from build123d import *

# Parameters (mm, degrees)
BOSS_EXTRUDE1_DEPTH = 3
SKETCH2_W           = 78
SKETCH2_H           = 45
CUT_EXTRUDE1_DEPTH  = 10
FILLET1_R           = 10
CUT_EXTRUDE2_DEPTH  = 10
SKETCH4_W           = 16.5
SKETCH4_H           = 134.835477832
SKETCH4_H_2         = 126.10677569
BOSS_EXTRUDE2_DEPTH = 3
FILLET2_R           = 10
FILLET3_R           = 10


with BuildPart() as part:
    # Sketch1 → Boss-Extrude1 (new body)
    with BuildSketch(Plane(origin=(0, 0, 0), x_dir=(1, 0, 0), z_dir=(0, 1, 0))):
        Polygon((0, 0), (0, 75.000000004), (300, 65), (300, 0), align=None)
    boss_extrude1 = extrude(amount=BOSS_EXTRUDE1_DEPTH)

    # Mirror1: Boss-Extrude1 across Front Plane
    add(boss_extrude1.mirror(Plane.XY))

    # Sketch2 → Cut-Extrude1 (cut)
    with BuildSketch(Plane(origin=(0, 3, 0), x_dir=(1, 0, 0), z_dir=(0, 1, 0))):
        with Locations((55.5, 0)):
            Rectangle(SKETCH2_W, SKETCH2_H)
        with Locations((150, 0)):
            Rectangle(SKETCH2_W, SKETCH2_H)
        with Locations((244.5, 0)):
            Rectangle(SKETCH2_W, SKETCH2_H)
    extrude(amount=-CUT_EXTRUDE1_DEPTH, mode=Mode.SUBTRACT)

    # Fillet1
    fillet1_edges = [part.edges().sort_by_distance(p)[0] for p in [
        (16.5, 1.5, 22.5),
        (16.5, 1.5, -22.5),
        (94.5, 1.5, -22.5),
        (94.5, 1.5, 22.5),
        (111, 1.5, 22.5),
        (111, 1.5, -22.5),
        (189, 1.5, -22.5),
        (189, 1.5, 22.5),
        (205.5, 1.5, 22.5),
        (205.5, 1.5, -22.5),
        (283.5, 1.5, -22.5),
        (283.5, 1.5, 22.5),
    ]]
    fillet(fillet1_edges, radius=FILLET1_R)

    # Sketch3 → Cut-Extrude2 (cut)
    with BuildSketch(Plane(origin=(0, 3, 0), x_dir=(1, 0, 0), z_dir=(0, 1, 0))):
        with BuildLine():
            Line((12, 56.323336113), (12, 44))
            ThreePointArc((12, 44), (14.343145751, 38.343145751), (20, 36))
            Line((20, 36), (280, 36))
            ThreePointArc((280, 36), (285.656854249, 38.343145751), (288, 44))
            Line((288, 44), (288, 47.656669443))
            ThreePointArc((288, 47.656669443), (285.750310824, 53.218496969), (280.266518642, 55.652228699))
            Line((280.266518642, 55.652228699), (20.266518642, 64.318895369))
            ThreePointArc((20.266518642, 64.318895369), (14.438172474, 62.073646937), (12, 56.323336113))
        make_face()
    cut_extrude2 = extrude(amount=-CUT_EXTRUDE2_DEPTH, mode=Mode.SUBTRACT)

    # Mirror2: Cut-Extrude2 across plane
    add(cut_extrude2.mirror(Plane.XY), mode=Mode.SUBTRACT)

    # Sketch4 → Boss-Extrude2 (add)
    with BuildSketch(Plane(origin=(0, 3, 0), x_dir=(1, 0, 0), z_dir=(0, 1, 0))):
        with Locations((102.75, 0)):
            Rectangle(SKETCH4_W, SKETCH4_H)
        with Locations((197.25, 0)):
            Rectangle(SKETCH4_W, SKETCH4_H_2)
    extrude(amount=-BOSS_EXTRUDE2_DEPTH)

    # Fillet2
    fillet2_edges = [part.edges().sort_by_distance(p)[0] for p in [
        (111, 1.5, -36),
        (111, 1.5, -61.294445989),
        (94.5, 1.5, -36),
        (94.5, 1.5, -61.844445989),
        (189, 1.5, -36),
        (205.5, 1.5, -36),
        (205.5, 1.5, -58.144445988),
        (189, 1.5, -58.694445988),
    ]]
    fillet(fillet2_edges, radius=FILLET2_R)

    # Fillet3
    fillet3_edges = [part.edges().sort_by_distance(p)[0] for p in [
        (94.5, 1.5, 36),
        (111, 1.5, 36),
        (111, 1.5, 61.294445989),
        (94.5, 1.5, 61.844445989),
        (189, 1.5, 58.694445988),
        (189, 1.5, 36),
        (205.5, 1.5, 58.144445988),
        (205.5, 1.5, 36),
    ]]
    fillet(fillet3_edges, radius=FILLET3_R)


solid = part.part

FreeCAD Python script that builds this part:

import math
import FreeCAD as App
import Part
import Sketcher


def edges_at(feature, points):
    """Names of the edges that pass closest to the given points."""
    edges = feature.Shape.Edges
    near = lambda p: min(range(len(edges)), key=lambda i: edges[i].distToShape(Part.Vertex(*p))[0])
    return sorted({f"Edge{near(p) + 1}" for p in points})

doc = App.newDocument("Part")
body = doc.addObject("PartDesign::Body", "Body")

# Sketch on XZ plane
sketch1 = body.newObject("Sketcher::SketchObject", "Sketch")
sketch1.AttachmentSupport = (doc.getObject("XZ_Plane"), [""])
sketch1.MapMode = "FlatFace"
sketch1.addGeometry([
    Part.LineSegment(App.Vector(0, -75, 0), App.Vector(0, 0, 0)),
    Part.LineSegment(App.Vector(0, 0, 0), App.Vector(300, 0, 0)),
    Part.LineSegment(App.Vector(300, 0, 0), App.Vector(300, -65, 0)),
    Part.LineSegment(App.Vector(300, -65, 0), App.Vector(0, -75, 0)),
], False)
sketch1.addConstraint([
    Sketcher.Constraint("Coincident", 0, 2, 1, 1),
    Sketcher.Constraint("Coincident", 1, 2, 2, 1),
    Sketcher.Constraint("Coincident", 2, 2, 3, 1),
    Sketcher.Constraint("Coincident", 3, 2, 0, 1),
    Sketcher.Constraint("Vertical", 0),
    Sketcher.Constraint("Horizontal", 1),
    Sketcher.Constraint("Vertical", 2),
    Sketcher.Constraint("Coincident", 0, 2, -1, 1),
    Sketcher.Constraint("DistanceX", 1, 1, 1, 2, 300.0),
    Sketcher.Constraint("DistanceY", 0, 1, 0, 2, 75.0),
    Sketcher.Constraint("DistanceY", 2, 2, 2, 1, 65.0),
])
pad1 = body.newObject("PartDesign::Pad", "Pad")
pad1.Profile = sketch1
pad1.Length = 3
pad1.Reversed = True
doc.recompute()

mirrored = body.newObject("PartDesign::Mirrored", "Mirrored")
mirrored.Originals = [pad1]
mirrored.MirrorPlane = (doc.getObject("XY_Plane"), [""])
body.Tip = mirrored

# Sketch on XZ plane
sketch2 = body.newObject("Sketcher::SketchObject", "Sketch001")
sketch2.AttachmentSupport = (doc.getObject("XZ_Plane"), [""])
sketch2.MapMode = "FlatFace"
sketch2.AttachmentOffset = App.Placement(App.Vector(0, 0, -3), App.Rotation())
sketch2.addGeometry([
    Part.LineSegment(App.Vector(16, -22, 0), App.Vector(16, 22, 0)),  # 0
    Part.LineSegment(App.Vector(16, 22, 0), App.Vector(94, 22, 0)),  # 1
    Part.LineSegment(App.Vector(94, 22, 0), App.Vector(94, -22, 0)),  # 2
    Part.LineSegment(App.Vector(94, -22, 0), App.Vector(16, -22, 0)),  # 3
    Part.LineSegment(App.Vector(111, -22, 0), App.Vector(111, 22, 0)),  # 4
    Part.LineSegment(App.Vector(111, 22, 0), App.Vector(189, 22, 0)),  # 5
    Part.LineSegment(App.Vector(189, 22, 0), App.Vector(189, -22, 0)),  # 6
    Part.LineSegment(App.Vector(189, -22, 0), App.Vector(111, -22, 0)),  # 7
    Part.LineSegment(App.Vector(206, -22, 0), App.Vector(206, 22, 0)),  # 8
    Part.LineSegment(App.Vector(206, 22, 0), App.Vector(284, 22, 0)),  # 9
    Part.LineSegment(App.Vector(284, 22, 0), App.Vector(284, -22, 0)),  # 10
    Part.LineSegment(App.Vector(284, -22, 0), App.Vector(206, -22, 0)),  # 11
], False)
sketch2.addConstraint([
    Sketcher.Constraint("Coincident", 0, 2, 1, 1),
    Sketcher.Constraint("Coincident", 1, 2, 2, 1),
    Sketcher.Constraint("Coincident", 2, 2, 3, 1),
    Sketcher.Constraint("Coincident", 3, 2, 0, 1),
    Sketcher.Constraint("Coincident", 4, 2, 5, 1),
    Sketcher.Constraint("Coincident", 5, 2, 6, 1),
    Sketcher.Constraint("Coincident", 6, 2, 7, 1),
    Sketcher.Constraint("Coincident", 7, 2, 4, 1),
    Sketcher.Constraint("Coincident", 8, 2, 9, 1),
    Sketcher.Constraint("Coincident", 9, 2, 10, 1),
    Sketcher.Constraint("Coincident", 10, 2, 11, 1),
    Sketcher.Constraint("Coincident", 11, 2, 8, 1),
    Sketcher.Constraint("Vertical", 0),
    Sketcher.Constraint("Horizontal", 1),
    Sketcher.Constraint("Vertical", 2),
    Sketcher.Constraint("Horizontal", 3),
    Sketcher.Constraint("Vertical", 4),
    Sketcher.Constraint("Horizontal", 5),
    Sketcher.Constraint("Vertical", 6),
    Sketcher.Constraint("Horizontal", 7),
    Sketcher.Constraint("Vertical", 8),
    Sketcher.Constraint("Horizontal", 9),
    Sketcher.Constraint("Vertical", 10),
    Sketcher.Constraint("Horizontal", 11),
    Sketcher.Constraint("Horizontal", 1, 2, 4, 2),
    Sketcher.Constraint("Horizontal", 3, 2, 6, 2),
    Sketcher.Constraint("Horizontal", 5, 2, 8, 2),
    Sketcher.Constraint("Horizontal", 7, 2, 10, 2),
    Sketcher.Constraint("Equal", 3, 5),
    Sketcher.Constraint("Equal", 7, 9),
    Sketcher.Constraint("DistanceX", 1, 1, 1, 2, 78.0),
    Sketcher.Constraint("DistanceY", 0, 1, 0, 2, 45.0),
    Sketcher.Constraint("DistanceX", -1, 1, 4, 2, 111.0),
    Sketcher.Constraint("DistanceX", 1, 2, 8, 2, 111.0),
    Sketcher.Constraint("DistanceX", -1, 1, 0, 2, 16.5),
    Sketcher.Constraint("DistanceY", -1, 1, 0, 2, 22.5),
])
pocket1 = body.newObject("PartDesign::Pocket", "Pocket")
pocket1.Profile = sketch2
pocket1.Length = 10
pocket1.Reversed = True
doc.recompute()

fillet = body.newObject("PartDesign::Fillet", "Fillet")
fillet.Base = (pocket1, edges_at(pocket1, [
    (16.5, 1.5, 22.5),
    (16.5, 1.5, -22.5),
    (94.5, 1.5, -22.5),
    (94.5, 1.5, 22.5),
    (111, 1.5, 22.5),
    (111, 1.5, -22.5),
    (189, 1.5, -22.5),
    (189, 1.5, 22.5),
    (205.5, 1.5, 22.5),
    (205.5, 1.5, -22.5),
    (283.5, 1.5, -22.5),
    (283.5, 1.5, 22.5),
]))
fillet.Radius = 10

# Sketch on XZ plane
sketch3 = body.newObject("Sketcher::SketchObject", "Sketch002")
sketch3.AttachmentSupport = (doc.getObject("XZ_Plane"), [""])
sketch3.MapMode = "FlatFace"
sketch3.AttachmentOffset = App.Placement(App.Vector(0, 0, -3), App.Rotation())
sketch3.addGeometry([
    Part.LineSegment(App.Vector(12, -56.3, 0), App.Vector(12, -44, 0)),  # 0
    Part.ArcOfCircle(Part.Circle(App.Vector(20, -44, 0), App.Vector(0, 0, 1), 8), math.radians(90), math.radians(180)),  # 1
    Part.LineSegment(App.Vector(20, -36, 0), App.Vector(280, -36, 0)),  # 2
    Part.ArcOfCircle(Part.Circle(App.Vector(280, -44, 0), App.Vector(0, 0, 1), 8), math.radians(0), math.radians(90)),  # 3
    Part.LineSegment(App.Vector(288, -44, 0), App.Vector(288, -47.7, 0)),  # 4
    Part.ArcOfCircle(Part.Circle(App.Vector(280, -47.7, 0), App.Vector(0, 0, 1), 8), math.radians(-88), math.radians(0)),  # 5
    Part.LineSegment(App.Vector(280.3, -55.7, 0), App.Vector(20.3, -64.3, 0)),  # 6
    Part.ArcOfCircle(Part.Circle(App.Vector(20, -56.3, 0), App.Vector(0, 0, 1), 8), math.radians(180), math.radians(272)),  # 7
], False)
sketch3.addConstraint([
    Sketcher.Constraint("Tangent", 0, 2, 1, 2),
    Sketcher.Constraint("Tangent", 1, 1, 2, 1),
    Sketcher.Constraint("Tangent", 2, 2, 3, 2),
    Sketcher.Constraint("Tangent", 3, 1, 4, 1),
    Sketcher.Constraint("Tangent", 4, 2, 5, 2),
    Sketcher.Constraint("Tangent", 5, 1, 6, 1),
    Sketcher.Constraint("Tangent", 6, 2, 7, 2),
    Sketcher.Constraint("Tangent", 7, 1, 0, 1),
    Sketcher.Constraint("Vertical", 0),
    Sketcher.Constraint("Horizontal", 2),
    Sketcher.Constraint("Vertical", 4),
    Sketcher.Constraint("Equal", 1, 3),
    Sketcher.Constraint("Equal", 3, 5),
    Sketcher.Constraint("Equal", 5, 7),
    Sketcher.Constraint("Radius", 1, 8.0),
    Sketcher.Constraint("DistanceX", 2, 1, 2, 2, 260.0),
    Sketcher.Constraint("DistanceX", -1, 1, 1, 3, 20.0),
    Sketcher.Constraint("DistanceY", 1, 3, -1, 1, 44.0),
    Sketcher.Constraint("DistanceY", 4, 2, 4, 1, 3.656669),
    Sketcher.Constraint("DistanceY", 0, 1, 0, 2, 12.323336),
])
pocket2 = body.newObject("PartDesign::Pocket", "Pocket001")
pocket2.Profile = sketch3
pocket2.Length = 10
pocket2.Reversed = True
doc.recompute()

mirrored2 = body.newObject("PartDesign::Mirrored", "Mirrored001")
mirrored2.Originals = [pocket2]
mirrored2.MirrorPlane = (doc.getObject("XY_Plane"), [""])
body.Tip = mirrored2

# Sketch on XZ plane
sketch4 = body.newObject("Sketcher::SketchObject", "Sketch003")
sketch4.AttachmentSupport = (doc.getObject("XZ_Plane"), [""])
sketch4.MapMode = "FlatFace"
sketch4.AttachmentOffset = App.Placement(App.Vector(0, 0, -3), App.Rotation())
sketch4.addGeometry([
    Part.LineSegment(App.Vector(94, -67, 0), App.Vector(94, 67, 0)),  # 0
    Part.LineSegment(App.Vector(94, 67, 0), App.Vector(111, 67, 0)),  # 1
    Part.LineSegment(App.Vector(111, 67, 0), App.Vector(111, -67, 0)),  # 2
    Part.LineSegment(App.Vector(111, -67, 0), App.Vector(94, -67, 0)),  # 3
    Part.LineSegment(App.Vector(189, -63, 0), App.Vector(189, 63, 0)),  # 4
    Part.LineSegment(App.Vector(189, 63, 0), App.Vector(206, 63, 0)),  # 5
    Part.LineSegment(App.Vector(206, 63, 0), App.Vector(206, -63, 0)),  # 6
    Part.LineSegment(App.Vector(206, -63, 0), App.Vector(189, -63, 0)),  # 7
], False)
sketch4.addConstraint([
    Sketcher.Constraint("Coincident", 0, 2, 1, 1),
    Sketcher.Constraint("Coincident", 1, 2, 2, 1),
    Sketcher.Constraint("Coincident", 2, 2, 3, 1),
    Sketcher.Constraint("Coincident", 3, 2, 0, 1),
    Sketcher.Constraint("Coincident", 4, 2, 5, 1),
    Sketcher.Constraint("Coincident", 5, 2, 6, 1),
    Sketcher.Constraint("Coincident", 6, 2, 7, 1),
    Sketcher.Constraint("Coincident", 7, 2, 4, 1),
    Sketcher.Constraint("Vertical", 0),
    Sketcher.Constraint("Horizontal", 1),
    Sketcher.Constraint("Vertical", 2),
    Sketcher.Constraint("Horizontal", 3),
    Sketcher.Constraint("Vertical", 4),
    Sketcher.Constraint("Horizontal", 5),
    Sketcher.Constraint("Vertical", 6),
    Sketcher.Constraint("Horizontal", 7),
    Sketcher.Constraint("Equal", 3, 5),
    Sketcher.Constraint("DistanceX", 1, 1, 1, 2, 16.5),
    Sketcher.Constraint("DistanceX", -1, 1, 1, 2, 111.0),
    Sketcher.Constraint("DistanceX", -1, 1, 4, 2, 189.0),
    Sketcher.Constraint("DistanceY", 0, 1, 0, 2, 134.835478),
    Sketcher.Constraint("DistanceY", 4, 1, 4, 2, 126.106776),
    Sketcher.Constraint("DistanceY", -1, 1, 0, 2, 67.417739),
    Sketcher.Constraint("DistanceY", 4, 2, 1, 2, 4.364351),
])
pad2 = body.newObject("PartDesign::Pad", "Pad001")
pad2.Profile = sketch4
pad2.Length = 3
doc.recompute()

fillet2 = body.newObject("PartDesign::Fillet", "Fillet001")
fillet2.Base = (pad2, edges_at(pad2, [
    (111, 1.5, -36),
    (111, 1.5, -61.294),
    (94.5, 1.5, -36),
    (94.5, 1.5, -61.844),
    (189, 1.5, -36),
    (205.5, 1.5, -36),
    (205.5, 1.5, -58.144),
    (189, 1.5, -58.694),
]))
fillet2.Radius = 10
doc.recompute()

fillet3 = body.newObject("PartDesign::Fillet", "Fillet002")
fillet3.Base = (fillet2, edges_at(fillet2, [
    (94.5, 1.5, 36),
    (111, 1.5, 36),
    (111, 1.5, 61.294),
    (94.5, 1.5, 61.844),
    (189, 1.5, 58.694),
    (189, 1.5, 36),
    (205.5, 1.5, 58.144),
    (205.5, 1.5, 36),
]))
fillet3.Radius = 10

doc.recompute()
